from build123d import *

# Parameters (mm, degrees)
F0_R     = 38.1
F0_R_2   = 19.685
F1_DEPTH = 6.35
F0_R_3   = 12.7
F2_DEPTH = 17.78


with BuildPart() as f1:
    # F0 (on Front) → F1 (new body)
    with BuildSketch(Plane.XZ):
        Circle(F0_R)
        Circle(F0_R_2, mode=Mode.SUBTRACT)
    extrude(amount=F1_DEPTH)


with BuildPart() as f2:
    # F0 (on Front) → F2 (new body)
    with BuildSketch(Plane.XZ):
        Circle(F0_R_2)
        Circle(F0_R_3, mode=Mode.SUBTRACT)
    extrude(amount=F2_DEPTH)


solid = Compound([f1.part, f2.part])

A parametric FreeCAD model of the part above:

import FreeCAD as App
import Part
import Sketcher
Q = App.Units.Quantity

doc = App.newDocument("Part")
body = doc.addObject("PartDesign::Body", "Body")

# Sketch on XZ plane
sketch1 = doc.addObject("Sketcher::SketchObject", "Sketch")
body.addObject(sketch1)
sketch1.AttachmentSupport = (doc.XZ_Plane, [""])
sketch1.MapMode = "FlatFace"
sketch1.addGeometry([
    Part.Circle(App.Vector(0, 0, 0), App.Vector(0, 0, 1), 38),
    Part.Circle(App.Vector(0, 0, 0), App.Vector(0, 0, 1), 20),
], False)
sketch1.addConstraint([
    Sketcher.Constraint("Coincident", 0, 3, -1, 1),
    Sketcher.Constraint("Coincident", 1, 3, -1, 1),
    Sketcher.Constraint("Diameter", 0, Q("3 in")),
    Sketcher.Constraint("Diameter", 1, Q("1.55 in")),
])
pad1 = doc.addObject("PartDesign::Pad", "Pad")
body.addObject(pad1)
pad1.Profile = sketch1
pad1.Length = Q("0.25 in")
body2 = doc.addObject("PartDesign::Body", "Body001")

# Sketch on XZ plane
sketch2 = doc.addObject("Sketcher::SketchObject", "Sketch001")
body2.addObject(sketch2)
sketch2.AttachmentSupport = (doc.getObject("XZ_Plane001"), [""])
sketch2.MapMode = "FlatFace"
sketch2.addGeometry([
    Part.Circle(App.Vector(0, 0, 0), App.Vector(0, 0, 1), 20),
    Part.Circle(App.Vector(0, 0, 0), App.Vector(0, 0, 1), 13),
], False)
sketch2.addConstraint([
    Sketcher.Constraint("Coincident", 0, 3, -1, 1),
    Sketcher.Constraint("Coincident", 1, 3, -1, 1),
    Sketcher.Constraint("Diameter", 1, Q("1 in")),
    Sketcher.Constraint("Diameter", 0, Q("1.55 in")),
])
pad2 = doc.addObject("PartDesign::Pad", "Pad001")
body2.addObject(pad2)
pad2.Profile = sketch2
pad2.Length = Q("0.7 in")

doc.recompute()
